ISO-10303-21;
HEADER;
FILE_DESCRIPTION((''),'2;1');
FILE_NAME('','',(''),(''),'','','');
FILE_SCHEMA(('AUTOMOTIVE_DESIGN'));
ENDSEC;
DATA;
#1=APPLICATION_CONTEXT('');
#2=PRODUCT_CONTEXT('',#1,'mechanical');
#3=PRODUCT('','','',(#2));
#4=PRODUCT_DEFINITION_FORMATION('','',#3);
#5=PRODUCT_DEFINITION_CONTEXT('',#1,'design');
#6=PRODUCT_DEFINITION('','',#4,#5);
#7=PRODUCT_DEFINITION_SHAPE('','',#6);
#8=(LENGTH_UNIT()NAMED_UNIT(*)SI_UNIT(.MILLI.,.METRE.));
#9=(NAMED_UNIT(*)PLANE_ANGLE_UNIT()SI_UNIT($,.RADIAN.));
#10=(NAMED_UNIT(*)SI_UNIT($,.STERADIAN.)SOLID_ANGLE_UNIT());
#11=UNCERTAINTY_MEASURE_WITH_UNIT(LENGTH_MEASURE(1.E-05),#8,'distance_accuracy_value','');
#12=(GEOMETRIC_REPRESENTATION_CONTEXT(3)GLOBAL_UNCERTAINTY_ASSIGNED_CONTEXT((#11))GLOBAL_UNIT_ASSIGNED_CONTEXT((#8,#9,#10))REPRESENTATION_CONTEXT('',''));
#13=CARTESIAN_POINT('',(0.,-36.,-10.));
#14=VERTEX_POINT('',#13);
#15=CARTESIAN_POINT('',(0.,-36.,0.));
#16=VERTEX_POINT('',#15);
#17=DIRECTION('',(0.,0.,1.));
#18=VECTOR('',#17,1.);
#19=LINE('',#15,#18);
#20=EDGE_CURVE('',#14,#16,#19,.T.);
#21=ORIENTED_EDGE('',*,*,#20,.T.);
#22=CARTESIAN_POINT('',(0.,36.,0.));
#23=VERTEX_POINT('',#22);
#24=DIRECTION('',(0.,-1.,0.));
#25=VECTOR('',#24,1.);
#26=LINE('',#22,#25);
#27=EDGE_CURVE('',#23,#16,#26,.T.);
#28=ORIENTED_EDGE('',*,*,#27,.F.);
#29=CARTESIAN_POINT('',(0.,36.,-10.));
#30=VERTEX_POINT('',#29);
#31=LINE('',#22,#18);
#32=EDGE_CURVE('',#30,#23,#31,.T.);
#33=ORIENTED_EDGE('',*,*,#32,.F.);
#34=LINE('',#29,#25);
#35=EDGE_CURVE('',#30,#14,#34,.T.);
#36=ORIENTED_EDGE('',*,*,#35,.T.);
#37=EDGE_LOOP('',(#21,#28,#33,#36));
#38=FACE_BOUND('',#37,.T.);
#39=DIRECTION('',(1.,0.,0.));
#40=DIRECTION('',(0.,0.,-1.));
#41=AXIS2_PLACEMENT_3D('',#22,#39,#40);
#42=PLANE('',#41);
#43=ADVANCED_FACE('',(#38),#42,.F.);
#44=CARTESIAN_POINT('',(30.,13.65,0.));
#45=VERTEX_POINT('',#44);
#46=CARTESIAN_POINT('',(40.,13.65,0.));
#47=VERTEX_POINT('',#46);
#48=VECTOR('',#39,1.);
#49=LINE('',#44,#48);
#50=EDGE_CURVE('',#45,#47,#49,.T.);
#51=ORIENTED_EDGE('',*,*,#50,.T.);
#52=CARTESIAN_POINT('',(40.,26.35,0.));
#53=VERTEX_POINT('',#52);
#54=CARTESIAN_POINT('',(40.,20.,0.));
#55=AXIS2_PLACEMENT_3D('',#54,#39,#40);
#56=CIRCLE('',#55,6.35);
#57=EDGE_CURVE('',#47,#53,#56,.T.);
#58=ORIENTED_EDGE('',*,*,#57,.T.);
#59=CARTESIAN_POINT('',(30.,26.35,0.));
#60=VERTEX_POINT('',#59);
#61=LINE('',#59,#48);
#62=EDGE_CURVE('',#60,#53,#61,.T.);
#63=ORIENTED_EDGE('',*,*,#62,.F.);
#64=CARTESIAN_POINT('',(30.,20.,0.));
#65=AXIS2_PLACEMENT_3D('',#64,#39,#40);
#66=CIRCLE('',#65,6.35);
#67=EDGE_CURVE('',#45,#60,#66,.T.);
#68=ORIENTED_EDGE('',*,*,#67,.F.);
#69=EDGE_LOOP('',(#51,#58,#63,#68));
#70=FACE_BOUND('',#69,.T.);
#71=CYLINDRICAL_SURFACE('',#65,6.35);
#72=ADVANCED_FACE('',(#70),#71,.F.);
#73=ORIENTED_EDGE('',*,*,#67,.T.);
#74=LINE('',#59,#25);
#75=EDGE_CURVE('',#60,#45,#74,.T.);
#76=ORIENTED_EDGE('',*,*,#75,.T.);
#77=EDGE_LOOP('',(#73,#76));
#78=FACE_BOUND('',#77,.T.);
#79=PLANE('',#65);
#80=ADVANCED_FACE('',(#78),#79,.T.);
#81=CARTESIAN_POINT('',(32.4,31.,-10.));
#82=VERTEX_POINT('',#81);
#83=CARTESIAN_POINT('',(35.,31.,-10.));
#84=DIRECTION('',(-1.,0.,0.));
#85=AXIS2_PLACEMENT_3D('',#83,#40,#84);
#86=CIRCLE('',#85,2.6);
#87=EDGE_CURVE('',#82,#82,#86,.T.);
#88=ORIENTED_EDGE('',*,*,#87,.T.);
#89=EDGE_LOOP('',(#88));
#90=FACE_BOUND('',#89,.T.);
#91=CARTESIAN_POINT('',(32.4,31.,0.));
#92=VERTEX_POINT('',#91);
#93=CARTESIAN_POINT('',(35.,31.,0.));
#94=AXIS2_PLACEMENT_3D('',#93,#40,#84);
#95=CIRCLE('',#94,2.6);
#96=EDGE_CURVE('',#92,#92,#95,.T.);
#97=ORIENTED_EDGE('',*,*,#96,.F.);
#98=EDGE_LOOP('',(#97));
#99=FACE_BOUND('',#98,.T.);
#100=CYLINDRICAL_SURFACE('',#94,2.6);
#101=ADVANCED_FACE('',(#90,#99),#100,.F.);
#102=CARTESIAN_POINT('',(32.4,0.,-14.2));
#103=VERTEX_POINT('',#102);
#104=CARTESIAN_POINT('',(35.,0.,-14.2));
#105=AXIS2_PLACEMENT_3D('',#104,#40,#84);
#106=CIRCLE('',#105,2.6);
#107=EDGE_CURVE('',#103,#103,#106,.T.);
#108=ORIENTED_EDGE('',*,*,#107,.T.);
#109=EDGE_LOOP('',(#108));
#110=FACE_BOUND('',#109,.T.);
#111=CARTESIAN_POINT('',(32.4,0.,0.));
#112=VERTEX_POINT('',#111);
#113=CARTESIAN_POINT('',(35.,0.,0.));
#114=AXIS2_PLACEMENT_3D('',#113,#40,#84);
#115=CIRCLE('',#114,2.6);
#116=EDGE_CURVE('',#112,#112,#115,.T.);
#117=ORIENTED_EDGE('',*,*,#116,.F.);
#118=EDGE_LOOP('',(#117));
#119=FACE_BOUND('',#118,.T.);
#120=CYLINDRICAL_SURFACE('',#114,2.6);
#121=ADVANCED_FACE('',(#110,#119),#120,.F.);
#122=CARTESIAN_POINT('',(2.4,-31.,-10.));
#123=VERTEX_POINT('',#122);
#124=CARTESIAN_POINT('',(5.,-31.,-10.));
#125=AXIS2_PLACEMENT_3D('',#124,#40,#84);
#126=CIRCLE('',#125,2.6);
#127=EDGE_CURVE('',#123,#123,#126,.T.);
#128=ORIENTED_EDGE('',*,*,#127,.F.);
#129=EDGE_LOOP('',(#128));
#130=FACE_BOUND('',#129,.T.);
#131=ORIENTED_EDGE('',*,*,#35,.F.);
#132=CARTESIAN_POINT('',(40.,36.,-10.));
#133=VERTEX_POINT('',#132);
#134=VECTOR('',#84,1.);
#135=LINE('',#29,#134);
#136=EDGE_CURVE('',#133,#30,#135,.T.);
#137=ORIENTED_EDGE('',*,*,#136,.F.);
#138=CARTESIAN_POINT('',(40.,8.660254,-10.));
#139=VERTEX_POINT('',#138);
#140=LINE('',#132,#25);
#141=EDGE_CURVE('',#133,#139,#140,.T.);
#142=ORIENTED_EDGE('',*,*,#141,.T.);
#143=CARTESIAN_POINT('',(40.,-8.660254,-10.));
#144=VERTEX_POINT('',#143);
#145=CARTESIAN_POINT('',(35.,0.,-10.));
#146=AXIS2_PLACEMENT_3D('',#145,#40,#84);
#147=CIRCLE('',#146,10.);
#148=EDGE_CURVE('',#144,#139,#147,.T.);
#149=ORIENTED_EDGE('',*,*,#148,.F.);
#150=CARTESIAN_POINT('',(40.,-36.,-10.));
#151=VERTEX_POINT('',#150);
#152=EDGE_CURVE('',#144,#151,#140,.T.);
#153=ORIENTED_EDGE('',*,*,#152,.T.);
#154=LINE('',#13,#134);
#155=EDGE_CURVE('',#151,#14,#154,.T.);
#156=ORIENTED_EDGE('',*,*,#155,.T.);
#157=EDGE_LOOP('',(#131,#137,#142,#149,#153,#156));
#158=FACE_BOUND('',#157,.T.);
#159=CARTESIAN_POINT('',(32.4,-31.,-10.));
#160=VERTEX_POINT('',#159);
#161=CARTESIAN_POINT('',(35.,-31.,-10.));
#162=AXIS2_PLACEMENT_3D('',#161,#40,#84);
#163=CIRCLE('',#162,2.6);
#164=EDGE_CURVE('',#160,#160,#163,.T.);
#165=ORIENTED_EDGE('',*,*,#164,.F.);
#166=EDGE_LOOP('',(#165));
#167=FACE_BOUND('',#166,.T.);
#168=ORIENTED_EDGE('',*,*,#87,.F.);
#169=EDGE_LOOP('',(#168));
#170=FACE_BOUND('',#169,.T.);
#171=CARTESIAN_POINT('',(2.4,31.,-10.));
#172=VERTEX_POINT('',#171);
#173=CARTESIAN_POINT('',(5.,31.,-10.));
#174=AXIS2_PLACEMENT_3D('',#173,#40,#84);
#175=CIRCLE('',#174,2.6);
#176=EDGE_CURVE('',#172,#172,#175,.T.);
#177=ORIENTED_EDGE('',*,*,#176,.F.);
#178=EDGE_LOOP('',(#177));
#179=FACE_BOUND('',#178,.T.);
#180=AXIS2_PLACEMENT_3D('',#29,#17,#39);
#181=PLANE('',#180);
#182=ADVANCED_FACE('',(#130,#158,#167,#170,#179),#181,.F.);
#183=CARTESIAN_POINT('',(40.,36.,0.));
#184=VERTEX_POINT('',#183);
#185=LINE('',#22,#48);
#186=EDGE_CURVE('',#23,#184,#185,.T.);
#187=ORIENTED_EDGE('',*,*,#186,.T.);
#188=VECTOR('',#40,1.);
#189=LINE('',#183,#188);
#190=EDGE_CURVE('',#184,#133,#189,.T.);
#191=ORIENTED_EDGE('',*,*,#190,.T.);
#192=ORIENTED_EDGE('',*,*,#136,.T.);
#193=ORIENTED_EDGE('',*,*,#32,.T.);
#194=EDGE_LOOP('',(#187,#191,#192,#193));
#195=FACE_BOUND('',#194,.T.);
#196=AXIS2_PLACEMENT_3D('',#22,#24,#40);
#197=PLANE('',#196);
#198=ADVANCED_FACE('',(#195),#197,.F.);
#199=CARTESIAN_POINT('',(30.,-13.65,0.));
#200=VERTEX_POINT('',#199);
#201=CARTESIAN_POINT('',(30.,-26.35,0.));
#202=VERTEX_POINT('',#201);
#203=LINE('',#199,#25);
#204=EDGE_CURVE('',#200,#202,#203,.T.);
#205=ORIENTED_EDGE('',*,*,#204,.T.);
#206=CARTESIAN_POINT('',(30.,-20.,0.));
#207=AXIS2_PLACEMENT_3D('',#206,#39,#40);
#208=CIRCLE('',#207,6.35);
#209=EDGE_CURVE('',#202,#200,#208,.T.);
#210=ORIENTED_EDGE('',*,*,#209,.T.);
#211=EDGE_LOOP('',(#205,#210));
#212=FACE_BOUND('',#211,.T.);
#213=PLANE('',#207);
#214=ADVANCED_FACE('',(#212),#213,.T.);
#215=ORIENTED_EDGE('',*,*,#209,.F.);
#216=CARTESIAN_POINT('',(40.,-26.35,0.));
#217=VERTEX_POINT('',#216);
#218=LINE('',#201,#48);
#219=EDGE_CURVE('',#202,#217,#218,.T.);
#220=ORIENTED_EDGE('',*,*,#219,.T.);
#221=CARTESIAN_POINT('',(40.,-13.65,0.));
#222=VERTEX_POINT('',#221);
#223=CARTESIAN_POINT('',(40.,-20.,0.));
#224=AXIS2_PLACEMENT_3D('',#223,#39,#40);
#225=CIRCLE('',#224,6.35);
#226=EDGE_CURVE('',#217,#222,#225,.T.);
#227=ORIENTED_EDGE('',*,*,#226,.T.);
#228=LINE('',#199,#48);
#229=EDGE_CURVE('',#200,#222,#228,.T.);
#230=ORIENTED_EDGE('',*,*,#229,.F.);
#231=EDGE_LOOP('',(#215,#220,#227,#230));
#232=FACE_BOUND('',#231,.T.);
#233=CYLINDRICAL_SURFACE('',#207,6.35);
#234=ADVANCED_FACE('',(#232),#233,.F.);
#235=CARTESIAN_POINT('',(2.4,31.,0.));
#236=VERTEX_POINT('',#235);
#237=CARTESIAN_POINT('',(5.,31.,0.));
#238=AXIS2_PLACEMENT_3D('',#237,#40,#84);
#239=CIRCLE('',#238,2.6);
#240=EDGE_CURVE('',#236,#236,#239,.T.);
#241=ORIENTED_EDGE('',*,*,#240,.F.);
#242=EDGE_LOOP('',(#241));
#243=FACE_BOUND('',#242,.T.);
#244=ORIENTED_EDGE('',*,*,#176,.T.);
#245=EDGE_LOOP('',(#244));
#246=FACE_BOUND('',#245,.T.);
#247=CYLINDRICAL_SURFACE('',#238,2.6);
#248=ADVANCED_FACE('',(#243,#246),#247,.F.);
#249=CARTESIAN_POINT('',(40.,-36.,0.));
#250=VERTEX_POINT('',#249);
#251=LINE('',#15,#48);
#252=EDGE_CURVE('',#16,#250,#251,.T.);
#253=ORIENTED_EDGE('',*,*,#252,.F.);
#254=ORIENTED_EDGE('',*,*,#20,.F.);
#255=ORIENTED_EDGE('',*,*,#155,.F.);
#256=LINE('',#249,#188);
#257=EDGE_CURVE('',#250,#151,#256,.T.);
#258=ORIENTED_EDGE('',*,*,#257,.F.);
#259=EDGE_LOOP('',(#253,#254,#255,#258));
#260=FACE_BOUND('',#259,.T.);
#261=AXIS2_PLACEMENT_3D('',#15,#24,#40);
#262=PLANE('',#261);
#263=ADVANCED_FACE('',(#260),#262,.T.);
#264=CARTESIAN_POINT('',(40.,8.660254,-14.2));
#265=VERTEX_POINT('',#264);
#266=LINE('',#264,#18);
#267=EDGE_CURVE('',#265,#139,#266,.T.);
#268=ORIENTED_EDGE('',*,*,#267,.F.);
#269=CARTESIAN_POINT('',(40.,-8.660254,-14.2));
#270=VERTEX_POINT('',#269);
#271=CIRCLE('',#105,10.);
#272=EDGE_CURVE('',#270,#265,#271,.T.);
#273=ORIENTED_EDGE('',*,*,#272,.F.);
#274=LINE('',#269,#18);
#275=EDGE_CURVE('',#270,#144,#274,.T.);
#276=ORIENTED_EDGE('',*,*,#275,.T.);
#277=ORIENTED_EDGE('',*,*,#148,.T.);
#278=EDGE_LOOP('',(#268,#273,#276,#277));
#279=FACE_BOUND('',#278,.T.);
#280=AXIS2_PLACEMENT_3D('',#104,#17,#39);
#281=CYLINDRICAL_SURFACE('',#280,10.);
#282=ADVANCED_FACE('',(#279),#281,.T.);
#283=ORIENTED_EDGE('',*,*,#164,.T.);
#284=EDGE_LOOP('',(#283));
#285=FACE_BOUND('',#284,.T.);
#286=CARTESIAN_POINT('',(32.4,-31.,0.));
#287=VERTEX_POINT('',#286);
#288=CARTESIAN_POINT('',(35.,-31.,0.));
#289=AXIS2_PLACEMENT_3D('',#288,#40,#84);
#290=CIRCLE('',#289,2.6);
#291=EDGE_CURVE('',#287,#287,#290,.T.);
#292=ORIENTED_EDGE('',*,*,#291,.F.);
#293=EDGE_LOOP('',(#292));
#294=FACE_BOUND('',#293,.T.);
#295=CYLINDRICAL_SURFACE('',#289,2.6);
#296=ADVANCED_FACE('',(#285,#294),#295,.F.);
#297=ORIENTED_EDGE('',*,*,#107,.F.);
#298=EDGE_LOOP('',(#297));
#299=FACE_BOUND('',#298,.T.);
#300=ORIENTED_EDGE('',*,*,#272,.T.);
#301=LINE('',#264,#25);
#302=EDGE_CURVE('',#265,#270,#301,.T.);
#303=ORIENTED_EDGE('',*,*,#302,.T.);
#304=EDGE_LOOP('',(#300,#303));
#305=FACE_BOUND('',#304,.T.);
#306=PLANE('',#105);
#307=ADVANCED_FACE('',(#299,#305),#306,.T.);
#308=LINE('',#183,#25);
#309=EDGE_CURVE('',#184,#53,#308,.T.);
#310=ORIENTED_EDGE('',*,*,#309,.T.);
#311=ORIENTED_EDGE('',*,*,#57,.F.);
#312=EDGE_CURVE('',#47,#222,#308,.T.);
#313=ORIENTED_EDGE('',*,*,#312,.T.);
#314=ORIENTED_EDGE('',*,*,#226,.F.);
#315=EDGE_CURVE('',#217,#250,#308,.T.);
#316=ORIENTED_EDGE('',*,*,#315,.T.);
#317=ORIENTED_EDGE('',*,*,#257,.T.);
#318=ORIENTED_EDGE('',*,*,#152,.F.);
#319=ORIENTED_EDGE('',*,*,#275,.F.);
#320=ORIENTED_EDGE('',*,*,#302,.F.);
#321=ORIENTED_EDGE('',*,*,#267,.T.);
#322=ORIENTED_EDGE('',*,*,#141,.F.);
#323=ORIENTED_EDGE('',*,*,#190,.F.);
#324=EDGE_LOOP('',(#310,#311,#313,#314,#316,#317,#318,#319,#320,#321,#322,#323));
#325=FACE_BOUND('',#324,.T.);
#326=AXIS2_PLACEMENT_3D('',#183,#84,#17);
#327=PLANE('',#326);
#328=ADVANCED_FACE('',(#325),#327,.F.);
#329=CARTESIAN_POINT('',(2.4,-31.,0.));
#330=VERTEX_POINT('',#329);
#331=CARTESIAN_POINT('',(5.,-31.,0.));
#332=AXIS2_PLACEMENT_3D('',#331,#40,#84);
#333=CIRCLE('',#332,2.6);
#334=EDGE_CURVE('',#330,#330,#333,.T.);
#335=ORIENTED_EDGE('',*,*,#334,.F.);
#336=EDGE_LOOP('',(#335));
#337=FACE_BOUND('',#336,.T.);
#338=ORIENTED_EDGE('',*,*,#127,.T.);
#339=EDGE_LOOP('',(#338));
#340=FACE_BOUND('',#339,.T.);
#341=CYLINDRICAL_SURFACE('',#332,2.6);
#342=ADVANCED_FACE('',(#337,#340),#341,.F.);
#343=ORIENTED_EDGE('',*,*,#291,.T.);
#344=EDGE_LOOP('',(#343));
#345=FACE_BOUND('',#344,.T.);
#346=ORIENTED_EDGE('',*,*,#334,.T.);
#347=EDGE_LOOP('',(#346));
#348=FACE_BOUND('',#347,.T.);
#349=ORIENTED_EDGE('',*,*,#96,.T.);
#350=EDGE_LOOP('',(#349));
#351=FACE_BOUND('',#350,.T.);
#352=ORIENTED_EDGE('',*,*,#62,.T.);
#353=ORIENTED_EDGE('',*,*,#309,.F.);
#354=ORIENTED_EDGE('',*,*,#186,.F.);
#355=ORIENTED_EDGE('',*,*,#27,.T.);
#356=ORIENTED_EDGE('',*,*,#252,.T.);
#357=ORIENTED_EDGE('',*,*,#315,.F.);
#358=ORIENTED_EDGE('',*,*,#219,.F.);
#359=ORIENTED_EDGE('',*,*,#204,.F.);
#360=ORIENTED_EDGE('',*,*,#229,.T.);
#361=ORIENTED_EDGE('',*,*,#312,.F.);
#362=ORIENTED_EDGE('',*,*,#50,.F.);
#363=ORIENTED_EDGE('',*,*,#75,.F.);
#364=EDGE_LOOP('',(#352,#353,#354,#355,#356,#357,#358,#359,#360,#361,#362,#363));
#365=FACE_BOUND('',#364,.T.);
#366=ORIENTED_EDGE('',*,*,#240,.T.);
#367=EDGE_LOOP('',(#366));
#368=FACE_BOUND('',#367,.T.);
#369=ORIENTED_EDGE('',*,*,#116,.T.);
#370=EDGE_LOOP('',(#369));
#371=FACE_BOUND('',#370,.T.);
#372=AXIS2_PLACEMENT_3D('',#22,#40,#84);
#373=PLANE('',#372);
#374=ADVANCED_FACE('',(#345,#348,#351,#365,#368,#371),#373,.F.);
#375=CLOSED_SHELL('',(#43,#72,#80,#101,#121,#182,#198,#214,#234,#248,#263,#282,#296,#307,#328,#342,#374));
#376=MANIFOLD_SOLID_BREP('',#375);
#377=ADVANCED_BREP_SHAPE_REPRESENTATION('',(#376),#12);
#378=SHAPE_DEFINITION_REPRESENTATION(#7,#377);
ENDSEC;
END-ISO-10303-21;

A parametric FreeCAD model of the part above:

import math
import FreeCAD as App
import Part
import Sketcher
Q = App.Units.Quantity

doc = App.newDocument("Part")
params = doc.addObject("Spreadsheet::Sheet", "Params")
for row, (alias, value) in enumerate([
    ("sketch1_width", "40 mm"),
    ("sketch1_height", "10 mm"),
    ("pad1_length", "72 mm"),
    ("sketch2_radius", "6.35 mm"),
    ("pocket1_length", "10 mm"),
    ("sketch3_diameter", "5.2 mm"),
    ("sketch4_radius", "10 mm"),
    ("sketch4_diameter", "5.2 mm"),
    ("pad2_length", "4.2 mm"),
], start=1):
    params.set(f"A{row}", alias)
    params.set(f"B{row}", "=" + value)
    params.setAlias(f"B{row}", alias)

body = doc.addObject("PartDesign::Body", "Body")

# Sketch on XZ plane
sketch1 = body.newObject("Sketcher::SketchObject", "Sketch")
sketch1.AttachmentSupport = (doc.getObject("XZ_Plane"), [""])
sketch1.MapMode = "FlatFace"
sketch1.addGeometry([
    Part.LineSegment(App.Vector(0, -10, 0), App.Vector(0, 0, 0)),
    Part.LineSegment(App.Vector(0, 0, 0), App.Vector(40, 0, 0)),
    Part.LineSegment(App.Vector(40, 0, 0), App.Vector(40, -10, 0)),
    Part.LineSegment(App.Vector(40, -10, 0), App.Vector(0, -10, 0)),
], False)
sketch1.addConstraint([
    Sketcher.Constraint("Coincident", 0, 2, 1, 1),
    Sketcher.Constraint("Coincident", 1, 2, 2, 1),
    Sketcher.Constraint("Coincident", 2, 2, 3, 1),
    Sketcher.Constraint("Coincident", 3, 2, 0, 1),
    Sketcher.Constraint("Vertical", 0),
    Sketcher.Constraint("Horizontal", 1),
    Sketcher.Constraint("Vertical", 2),
    Sketcher.Constraint("Horizontal", 3),
    Sketcher.Constraint("Coincident", 0, 2, -1, 1),
    Sketcher.Constraint("DistanceX", 1, 1, 1, 2, Q("40 mm")),
    Sketcher.Constraint("DistanceY", 0, 1, 0, 2, Q("10 mm")),
])
sketch1.setExpression("Constraints[9]", "Params.sketch1_width")
sketch1.setExpression("Constraints[10]", "Params.sketch1_height")
pad1 = body.newObject("PartDesign::Pad", "Pad")
pad1.Profile = sketch1
pad1.setExpression("Length", "Params.pad1_length")
pad1.Midplane = True

# Sketch on YZ plane
sketch2 = body.newObject("Sketcher::SketchObject", "Sketch001")
sketch2.AttachmentSupport = (doc.getObject("YZ_Plane"), [""])
sketch2.MapMode = "FlatFace"
sketch2.AttachmentOffset = App.Placement(App.Vector(0, 0, 40), App.Rotation())
sketch2.addGeometry([
    Part.LineSegment(App.Vector(26, 0, 0), App.Vector(14, 0, 0)),
    Part.ArcOfCircle(Part.Circle(App.Vector(20, 0, 0), App.Vector(0, 0, 1), 6), math.radians(180), math.radians(360)),
    Part.LineSegment(App.Vector(-14, 0, 0), App.Vector(-26, 0, 0)),
    Part.ArcOfCircle(Part.Circle(App.Vector(-20, 0, 0), App.Vector(0, 0, 1), 6), math.radians(180), math.radians(360)),
], False)
sketch2.addConstraint([
    Sketcher.Constraint("Coincident", 0, 1, 1, 2),
    Sketcher.Constraint("Coincident", 1, 1, 0, 2),
    Sketcher.Constraint("Coincident", 2, 1, 3, 2),
    Sketcher.Constraint("Coincident", 3, 1, 2, 2),
    Sketcher.Constraint("Horizontal", 0),
    Sketcher.Constraint("Horizontal", 2),
    Sketcher.Constraint("Equal", 1, 3),
    Sketcher.Constraint("Symmetric", 1, 3, 3, 3, -1, 1),
    Sketcher.Constraint("PointOnObject", 1, 3, -1),
    Sketcher.Constraint("PointOnObject", 0, 1, -1),
    Sketcher.Constraint("PointOnObject", 2, 1, -1),
    Sketcher.Constraint("Radius", 1, Q("6.35 mm")),
    Sketcher.Constraint("DistanceX", -1, 1, 1, 3, Q("20 mm")),
])
sketch2.setExpression("Constraints[11]", "Params.sketch2_radius")
pocket1 = body.newObject("PartDesign::Pocket", "Pocket")
pocket1.Profile = sketch2
pocket1.setExpression("Length", "Params.pocket1_length")

# Sketch on XY plane
sketch3 = body.newObject("Sketcher::SketchObject", "Sketch002")
sketch3.AttachmentSupport = (doc.getObject("XY_Plane"), [""])
sketch3.MapMode = "FlatFace"
sketch3.AttachmentOffset = App.Placement(App.Vector(0, 0, -10), App.Rotation())
sketch3.addGeometry([
    Part.Circle(App.Vector(35, 31, 0), App.Vector(0, 0, 1), 2.6),  # 0
    Part.Circle(App.Vector(5, 31, 0), App.Vector(0, 0, 1), 2.6),  # 1
    Part.Circle(App.Vector(35, -31, 0), App.Vector(0, 0, 1), 2.6),  # 2
    Part.Circle(App.Vector(5, -31, 0), App.Vector(0, 0, 1), 2.6),  # 3
    Part.Circle(App.Vector(35, 0, 0), App.Vector(0, 0, 1), 2.6),  # 4
], False)
sketch3.addConstraint([
    Sketcher.Constraint("Equal", 0, 1),
    Sketcher.Constraint("Equal", 1, 2),
    Sketcher.Constraint("Equal", 2, 3),
    Sketcher.Constraint("Equal", 3, 4),
    Sketcher.Constraint("Symmetric", 0, 3, 2, 3, -1),
    Sketcher.Constraint("Symmetric", 1, 3, 3, 3, -1),
    Sketcher.Constraint("PointOnObject", 4, 3, -1),
    Sketcher.Constraint("Horizontal", 0, 3, 1, 3),
    Sketcher.Constraint("Vertical", 2, 3, 4, 3),
    Sketcher.Constraint("Diameter", 0, Q("5.2 mm")),
    Sketcher.Constraint("DistanceX", -1, 1, 0, 3, Q("35 mm")),
    Sketcher.Constraint("DistanceY", -1, 1, 0, 3, Q("31 mm")),
    Sketcher.Constraint("DistanceX", -1, 1, 1, 3, Q("5 mm")),
])
sketch3.setExpression("Constraints[9]", "Params.sketch3_diameter")
pocket2 = body.newObject("PartDesign::Pocket", "Pocket001")
pocket2.Profile = sketch3
pocket2.Type = "ThroughAll"
pocket2.Reversed = True

# Sketch on XY plane
sketch4 = body.newObject("Sketcher::SketchObject", "Sketch003")
sketch4.AttachmentSupport = (doc.getObject("XY_Plane"), [""])
sketch4.MapMode = "FlatFace"
sketch4.AttachmentOffset = App.Placement(App.Vector(0, 0, -14.2), App.Rotation())
sketch4.addGeometry([
    Part.LineSegment(App.Vector(40, 8.7, 0), App.Vector(40, -8.7, 0)),
    Part.ArcOfCircle(Part.Circle(App.Vector(35, 0, 0), App.Vector(0, 0, 1), 10), math.radians(60), math.radians(300)),
    Part.Circle(App.Vector(35, 0, 0), App.Vector(0, 0, 1), 2.6),
], False)
sketch4.addConstraint([
    Sketcher.Constraint("Coincident", 0, 1, 1, 1),
    Sketcher.Constraint("Coincident", 1, 2, 0, 2),
    Sketcher.Constraint("Vertical", 0),
    Sketcher.Constraint("Coincident", 2, 3, 1, 3),
    Sketcher.Constraint("PointOnObject", 1, 3, -1),
    Sketcher.Constraint("Radius", 1, Q("10 mm")),
    Sketcher.Constraint("Diameter", 2, Q("5.2 mm")),
    Sketcher.Constraint("DistanceX", -1, 1, 1, 3, Q("35 mm")),
    Sketcher.Constraint("DistanceX", -1, 1, 0, 1, Q("40 mm")),
])
sketch4.setExpression("Constraints[5]", "Params.sketch4_radius")
sketch4.setExpression("Constraints[6]", "Params.sketch4_diameter")
pad2 = body.newObject("PartDesign::Pad", "Pad001")
pad2.Profile = sketch4
pad2.setExpression("Length", "Params.pad2_length")

doc.recompute()
